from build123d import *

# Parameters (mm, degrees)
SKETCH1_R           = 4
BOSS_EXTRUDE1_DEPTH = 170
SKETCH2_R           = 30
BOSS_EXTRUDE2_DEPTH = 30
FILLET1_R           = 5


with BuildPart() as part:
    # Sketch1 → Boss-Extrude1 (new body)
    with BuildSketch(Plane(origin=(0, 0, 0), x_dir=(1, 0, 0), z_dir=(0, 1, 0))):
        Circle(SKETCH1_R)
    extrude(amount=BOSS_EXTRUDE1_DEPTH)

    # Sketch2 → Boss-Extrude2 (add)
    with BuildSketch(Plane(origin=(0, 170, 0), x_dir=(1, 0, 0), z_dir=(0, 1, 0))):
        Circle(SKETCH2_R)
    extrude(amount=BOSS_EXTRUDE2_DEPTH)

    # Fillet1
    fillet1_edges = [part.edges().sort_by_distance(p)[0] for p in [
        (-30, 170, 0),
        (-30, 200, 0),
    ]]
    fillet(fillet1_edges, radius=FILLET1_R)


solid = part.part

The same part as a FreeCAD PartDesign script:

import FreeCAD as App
import Part
import Sketcher
Q = App.Units.Quantity


def edges_at(feature, points):
    """Names of the edges that pass closest to the given points."""
    edges = feature.Shape.Edges
    near = lambda p: min(range(len(edges)), key=lambda i: edges[i].distToShape(Part.Vertex(*p))[0])
    return sorted({f"Edge{near(p) + 1}" for p in points})

doc = App.newDocument("Part")
params = doc.addObject("Spreadsheet::Sheet", "Params")
for row, (alias, value) in enumerate([
    ("sketch1_diameter", "8 mm"),
    ("pad1_length", "170 mm"),
    ("sketch2_diameter", "60 mm"),
    ("pad2_length", "30 mm"),
    ("fillet_radius", "5 mm"),
], start=1):
    params.set(f"A{row}", alias)
    params.set(f"B{row}", "=" + value)
    params.setAlias(f"B{row}", alias)

body = doc.addObject("PartDesign::Body", "Body")

sketch1 = body.newObject("Sketcher::SketchObject", "Sketch")
sketch1.AttachmentSupport = (doc.getObject("XZ_Plane"), [""])
sketch1.MapMode = "FlatFace"
sketch1.addGeometry(Part.Circle(App.Vector(0, 0, 0), App.Vector(0, 0, 1), 4), False)
sketch1.addConstraint([
    Sketcher.Constraint("Coincident", 0, 3, -1, 1),
    Sketcher.Constraint("Diameter", 0, Q("8 mm")),
])
sketch1.setExpression("Constraints[1]", "Params.sketch1_diameter")
pad1 = body.newObject("PartDesign::Pad", "Pad")
pad1.Profile = sketch1
pad1.setExpression("Length", "Params.pad1_length")
pad1.Reversed = True

sketch2 = body.newObject("Sketcher::SketchObject", "Sketch001")
sketch2.AttachmentSupport = (doc.getObject("XZ_Plane"), [""])
sketch2.MapMode = "FlatFace"
sketch2.AttachmentOffset = App.Placement(App.Vector(0, 0, -170), App.Rotation())
sketch2.addGeometry(Part.Circle(App.Vector(0, 0, 0), App.Vector(0, 0, 1), 30), False)
sketch2.addConstraint([
    Sketcher.Constraint("Coincident", 0, 3, -1, 1),
    Sketcher.Constraint("Diameter", 0, Q("60 mm")),
])
sketch2.setExpression("Constraints[1]", "Params.sketch2_diameter")
pad2 = body.newObject("PartDesign::Pad", "Pad001")
pad2.Profile = sketch2
pad2.setExpression("Length", "Params.pad2_length")
pad2.Reversed = True
doc.recompute()

fillet = body.newObject("PartDesign::Fillet", "Fillet")
fillet.Base = (pad2, edges_at(pad2, [(-30, 170, 0), (-30, 200, 0)]))
fillet.setExpression("Radius", "Params.fillet_radius")

doc.recompute()
